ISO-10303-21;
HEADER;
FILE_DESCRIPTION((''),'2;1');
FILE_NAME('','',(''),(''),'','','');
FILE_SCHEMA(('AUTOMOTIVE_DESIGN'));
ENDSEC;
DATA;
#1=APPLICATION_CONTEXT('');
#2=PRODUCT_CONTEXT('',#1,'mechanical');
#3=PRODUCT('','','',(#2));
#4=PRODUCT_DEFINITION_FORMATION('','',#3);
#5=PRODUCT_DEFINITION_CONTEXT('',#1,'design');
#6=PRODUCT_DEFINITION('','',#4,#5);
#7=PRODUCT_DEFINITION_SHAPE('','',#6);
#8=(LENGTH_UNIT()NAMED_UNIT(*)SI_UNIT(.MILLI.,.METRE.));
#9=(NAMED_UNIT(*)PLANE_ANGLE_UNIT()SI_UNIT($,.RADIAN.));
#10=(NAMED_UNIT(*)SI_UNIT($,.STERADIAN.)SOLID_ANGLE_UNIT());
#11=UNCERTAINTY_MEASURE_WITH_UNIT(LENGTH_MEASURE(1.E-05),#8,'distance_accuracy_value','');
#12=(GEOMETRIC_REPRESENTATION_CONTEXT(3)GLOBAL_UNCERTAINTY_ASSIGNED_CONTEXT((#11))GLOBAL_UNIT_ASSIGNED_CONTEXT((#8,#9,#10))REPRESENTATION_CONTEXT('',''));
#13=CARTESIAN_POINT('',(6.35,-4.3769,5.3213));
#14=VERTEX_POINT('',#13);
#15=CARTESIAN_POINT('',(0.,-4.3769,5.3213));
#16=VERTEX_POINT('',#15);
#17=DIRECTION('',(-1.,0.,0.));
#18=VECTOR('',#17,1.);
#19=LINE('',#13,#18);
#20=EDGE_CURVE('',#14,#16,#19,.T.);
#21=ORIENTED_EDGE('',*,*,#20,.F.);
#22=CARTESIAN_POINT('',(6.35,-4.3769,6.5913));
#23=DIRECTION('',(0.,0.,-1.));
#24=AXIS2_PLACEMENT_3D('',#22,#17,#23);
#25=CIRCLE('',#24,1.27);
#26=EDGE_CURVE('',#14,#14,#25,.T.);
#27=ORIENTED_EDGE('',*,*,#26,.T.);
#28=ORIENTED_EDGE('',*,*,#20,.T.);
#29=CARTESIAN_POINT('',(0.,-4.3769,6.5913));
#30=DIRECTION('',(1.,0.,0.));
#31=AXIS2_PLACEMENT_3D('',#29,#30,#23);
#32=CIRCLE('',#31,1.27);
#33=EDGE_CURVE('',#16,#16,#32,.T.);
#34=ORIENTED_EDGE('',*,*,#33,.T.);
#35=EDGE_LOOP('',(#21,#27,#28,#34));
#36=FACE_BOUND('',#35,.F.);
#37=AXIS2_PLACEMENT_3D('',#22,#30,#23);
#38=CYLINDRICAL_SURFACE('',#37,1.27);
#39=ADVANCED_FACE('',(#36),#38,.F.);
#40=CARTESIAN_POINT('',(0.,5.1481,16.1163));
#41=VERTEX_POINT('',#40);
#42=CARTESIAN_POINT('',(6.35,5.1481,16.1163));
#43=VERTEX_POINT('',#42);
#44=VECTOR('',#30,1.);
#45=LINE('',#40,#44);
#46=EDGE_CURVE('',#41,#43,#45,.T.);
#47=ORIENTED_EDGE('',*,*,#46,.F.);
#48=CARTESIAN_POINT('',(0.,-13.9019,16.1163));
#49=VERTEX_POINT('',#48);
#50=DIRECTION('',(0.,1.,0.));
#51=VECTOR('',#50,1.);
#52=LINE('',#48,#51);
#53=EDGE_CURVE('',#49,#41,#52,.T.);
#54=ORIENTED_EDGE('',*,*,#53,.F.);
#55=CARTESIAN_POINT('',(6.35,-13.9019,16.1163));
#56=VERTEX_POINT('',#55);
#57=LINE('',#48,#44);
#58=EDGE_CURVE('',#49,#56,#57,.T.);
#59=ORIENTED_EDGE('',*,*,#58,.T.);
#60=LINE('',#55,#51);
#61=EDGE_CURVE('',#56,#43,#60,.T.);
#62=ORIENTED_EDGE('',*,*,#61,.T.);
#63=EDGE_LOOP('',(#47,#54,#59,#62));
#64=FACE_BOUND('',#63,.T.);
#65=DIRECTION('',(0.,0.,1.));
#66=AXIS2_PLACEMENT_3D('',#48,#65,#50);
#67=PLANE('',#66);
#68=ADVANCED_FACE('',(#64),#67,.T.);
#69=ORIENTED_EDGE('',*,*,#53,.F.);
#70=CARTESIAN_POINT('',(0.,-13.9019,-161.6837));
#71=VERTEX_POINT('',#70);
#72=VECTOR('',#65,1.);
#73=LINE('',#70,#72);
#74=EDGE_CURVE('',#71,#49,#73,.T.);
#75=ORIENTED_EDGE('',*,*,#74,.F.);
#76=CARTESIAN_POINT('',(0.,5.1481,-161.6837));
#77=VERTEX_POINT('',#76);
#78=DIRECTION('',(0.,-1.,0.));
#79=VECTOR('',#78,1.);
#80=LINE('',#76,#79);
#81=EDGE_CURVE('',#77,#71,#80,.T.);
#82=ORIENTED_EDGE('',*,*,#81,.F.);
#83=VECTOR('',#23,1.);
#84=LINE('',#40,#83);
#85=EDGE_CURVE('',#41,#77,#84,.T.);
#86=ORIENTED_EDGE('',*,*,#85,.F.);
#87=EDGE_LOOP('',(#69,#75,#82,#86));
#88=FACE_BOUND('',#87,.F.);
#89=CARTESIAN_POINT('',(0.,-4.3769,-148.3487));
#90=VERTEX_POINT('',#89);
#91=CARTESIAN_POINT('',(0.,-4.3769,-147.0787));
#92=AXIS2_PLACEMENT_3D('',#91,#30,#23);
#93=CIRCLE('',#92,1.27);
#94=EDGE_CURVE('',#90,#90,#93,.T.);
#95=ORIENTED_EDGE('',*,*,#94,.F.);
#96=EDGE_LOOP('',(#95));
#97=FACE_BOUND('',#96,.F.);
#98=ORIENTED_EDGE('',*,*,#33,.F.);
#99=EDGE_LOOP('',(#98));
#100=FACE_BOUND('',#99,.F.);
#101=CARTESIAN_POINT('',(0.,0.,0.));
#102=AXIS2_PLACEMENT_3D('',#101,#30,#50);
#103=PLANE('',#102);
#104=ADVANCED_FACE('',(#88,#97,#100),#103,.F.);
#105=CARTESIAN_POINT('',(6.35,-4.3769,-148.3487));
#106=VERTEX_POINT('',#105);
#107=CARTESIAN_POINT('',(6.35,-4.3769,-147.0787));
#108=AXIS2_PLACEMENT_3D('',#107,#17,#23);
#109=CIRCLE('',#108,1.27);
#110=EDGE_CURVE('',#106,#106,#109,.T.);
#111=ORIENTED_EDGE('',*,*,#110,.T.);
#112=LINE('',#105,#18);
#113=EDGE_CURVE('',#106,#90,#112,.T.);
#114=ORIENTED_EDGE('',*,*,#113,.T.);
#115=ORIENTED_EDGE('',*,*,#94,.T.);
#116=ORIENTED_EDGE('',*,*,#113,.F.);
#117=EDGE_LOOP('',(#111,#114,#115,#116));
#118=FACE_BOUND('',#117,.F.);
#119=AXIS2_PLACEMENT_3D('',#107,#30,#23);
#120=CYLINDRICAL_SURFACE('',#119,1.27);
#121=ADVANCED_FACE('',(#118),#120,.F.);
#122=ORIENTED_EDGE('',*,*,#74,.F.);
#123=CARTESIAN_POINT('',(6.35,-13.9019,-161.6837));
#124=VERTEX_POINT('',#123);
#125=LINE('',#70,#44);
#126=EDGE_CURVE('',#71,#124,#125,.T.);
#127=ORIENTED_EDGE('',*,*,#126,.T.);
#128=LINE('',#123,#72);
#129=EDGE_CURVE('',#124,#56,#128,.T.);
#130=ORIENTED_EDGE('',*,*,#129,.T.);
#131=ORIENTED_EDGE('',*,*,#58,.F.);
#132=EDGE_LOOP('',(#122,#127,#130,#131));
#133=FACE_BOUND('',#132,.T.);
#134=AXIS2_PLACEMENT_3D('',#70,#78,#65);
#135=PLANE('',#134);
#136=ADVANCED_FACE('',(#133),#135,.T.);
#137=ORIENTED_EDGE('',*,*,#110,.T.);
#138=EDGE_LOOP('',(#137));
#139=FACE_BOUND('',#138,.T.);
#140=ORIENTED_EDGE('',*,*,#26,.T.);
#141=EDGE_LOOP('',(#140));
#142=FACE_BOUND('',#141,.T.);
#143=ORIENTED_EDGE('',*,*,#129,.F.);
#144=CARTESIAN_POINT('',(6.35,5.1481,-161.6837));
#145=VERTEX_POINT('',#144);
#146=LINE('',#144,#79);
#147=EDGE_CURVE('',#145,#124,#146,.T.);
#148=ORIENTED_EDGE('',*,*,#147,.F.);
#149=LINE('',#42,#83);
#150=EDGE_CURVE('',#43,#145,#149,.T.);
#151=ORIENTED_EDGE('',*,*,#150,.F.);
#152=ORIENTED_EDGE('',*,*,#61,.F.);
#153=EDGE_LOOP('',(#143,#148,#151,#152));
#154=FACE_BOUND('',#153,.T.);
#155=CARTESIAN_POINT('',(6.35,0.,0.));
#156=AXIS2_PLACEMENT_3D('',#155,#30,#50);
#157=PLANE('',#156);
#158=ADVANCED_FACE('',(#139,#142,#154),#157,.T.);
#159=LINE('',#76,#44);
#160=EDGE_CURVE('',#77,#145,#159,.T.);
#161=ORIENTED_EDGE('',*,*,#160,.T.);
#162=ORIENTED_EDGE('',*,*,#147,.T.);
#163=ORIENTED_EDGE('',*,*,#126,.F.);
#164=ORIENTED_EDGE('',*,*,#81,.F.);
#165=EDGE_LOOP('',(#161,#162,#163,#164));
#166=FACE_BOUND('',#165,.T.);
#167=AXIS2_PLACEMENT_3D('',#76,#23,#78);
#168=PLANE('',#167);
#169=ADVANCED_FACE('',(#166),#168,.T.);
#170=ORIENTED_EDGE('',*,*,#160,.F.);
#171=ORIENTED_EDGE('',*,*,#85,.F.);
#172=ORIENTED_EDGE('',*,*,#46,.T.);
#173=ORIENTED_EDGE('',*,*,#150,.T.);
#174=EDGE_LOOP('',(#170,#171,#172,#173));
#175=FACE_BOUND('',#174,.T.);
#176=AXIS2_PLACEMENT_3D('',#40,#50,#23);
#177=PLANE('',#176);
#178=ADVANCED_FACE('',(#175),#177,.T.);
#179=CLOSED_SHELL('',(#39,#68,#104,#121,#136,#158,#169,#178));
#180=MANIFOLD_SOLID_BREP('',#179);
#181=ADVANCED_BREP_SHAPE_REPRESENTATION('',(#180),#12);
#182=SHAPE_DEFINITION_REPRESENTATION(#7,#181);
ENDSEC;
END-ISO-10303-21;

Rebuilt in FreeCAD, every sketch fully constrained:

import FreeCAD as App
import Part
import Sketcher
from FreeCAD import Vector
Q = App.Units.Quantity

doc = App.newDocument("Part")
body = doc.addObject("PartDesign::Body", "Body")

# Sketch on YZ plane
sketch1 = doc.addObject("Sketcher::SketchObject", "Sketch")
body.addObject(sketch1)
sketch1.AttachmentSupport = (doc.YZ_Plane, [""])
sketch1.MapMode = "FlatFace"
sketch1.addGeometry(Part.LineSegment(Vector(5, -162, 0), Vector(5, 16, 0)), False)
sketch1.addGeometry(Part.LineSegment(Vector(5, 16, 0), Vector(-14, 16, 0)), False)
sketch1.addGeometry(Part.LineSegment(Vector(-14, 16, 0), Vector(-14, -162, 0)), False)
sketch1.addGeometry(Part.LineSegment(Vector(-14, -162, 0), Vector(5, -162, 0)), False)
sketch1.addConstraint(Sketcher.Constraint("Coincident", 0, 2, 1, 1))
sketch1.addConstraint(Sketcher.Constraint("Coincident", 1, 2, 2, 1))
sketch1.addConstraint(Sketcher.Constraint("Coincident", 2, 2, 3, 1))
sketch1.addConstraint(Sketcher.Constraint("Coincident", 3, 2, 0, 1))
sketch1.addConstraint(Sketcher.Constraint("Vertical", 0))
sketch1.addConstraint(Sketcher.Constraint("Horizontal", 1))
sketch1.addConstraint(Sketcher.Constraint("Vertical", 2))
sketch1.addConstraint(Sketcher.Constraint("Horizontal", 3))
sketch1.addConstraint(Sketcher.Constraint("DistanceY", 0, 1, 0, 2, Q("7 in")))
sketch1.addConstraint(Sketcher.Constraint("DistanceX", 1, 2, 1, 1, Q("0.75 in")))
sketch1.addConstraint(Sketcher.Constraint("DistanceY", -1, 1, 0, 2, Q("0.6345 in")))
sketch1.addConstraint(Sketcher.Constraint("DistanceX", -1, 1, 0, 2, 5.148))
pad1 = doc.addObject("PartDesign::Pad", "Pad")
body.addObject(pad1)
pad1.Profile = sketch1
pad1.Length = Q("0.25 in")

# Sketch on YZ plane
sketch2 = doc.addObject("Sketcher::SketchObject", "Sketch001")
body.addObject(sketch2)
sketch2.AttachmentSupport = (doc.YZ_Plane, [""])
sketch2.MapMode = "FlatFace"
sketch2.AttachmentOffset = App.Placement(Vector(0, 0, 0.25 * 25.4), App.Rotation())
sketch2.addGeometry(Part.Circle(Vector(-4.4, 6.6, 0), Vector(0, 0, 1), 1.3), False)
sketch2.addGeometry(Part.Circle(Vector(-4.4, -147.1, 0), Vector(0, 0, 1), 1.3), False)
sketch2.addConstraint(Sketcher.Constraint("Equal", 0, 1))
sketch2.addConstraint(Sketcher.Constraint("Vertical", 0, 3, 1, 3))
sketch2.addConstraint(Sketcher.Constraint("Diameter", 0, Q("0.1 in")))
sketch2.addConstraint(Sketcher.Constraint("DistanceY", 1, 3, 0, 3, Q("6.05 in")))
sketch2.addConstraint(Sketcher.Constraint("DistanceY", -1, 1, 0, 3, Q("0.2595 in")))
sketch2.addConstraint(Sketcher.Constraint("DistanceX", 0, 3, -1, 1, 4.377))
pocket1 = doc.addObject("PartDesign::Pocket", "Pocket")
body.addObject(pocket1)
pocket1.Profile = sketch2
pocket1.Length = Q("0.25 in")

doc.recompute()
